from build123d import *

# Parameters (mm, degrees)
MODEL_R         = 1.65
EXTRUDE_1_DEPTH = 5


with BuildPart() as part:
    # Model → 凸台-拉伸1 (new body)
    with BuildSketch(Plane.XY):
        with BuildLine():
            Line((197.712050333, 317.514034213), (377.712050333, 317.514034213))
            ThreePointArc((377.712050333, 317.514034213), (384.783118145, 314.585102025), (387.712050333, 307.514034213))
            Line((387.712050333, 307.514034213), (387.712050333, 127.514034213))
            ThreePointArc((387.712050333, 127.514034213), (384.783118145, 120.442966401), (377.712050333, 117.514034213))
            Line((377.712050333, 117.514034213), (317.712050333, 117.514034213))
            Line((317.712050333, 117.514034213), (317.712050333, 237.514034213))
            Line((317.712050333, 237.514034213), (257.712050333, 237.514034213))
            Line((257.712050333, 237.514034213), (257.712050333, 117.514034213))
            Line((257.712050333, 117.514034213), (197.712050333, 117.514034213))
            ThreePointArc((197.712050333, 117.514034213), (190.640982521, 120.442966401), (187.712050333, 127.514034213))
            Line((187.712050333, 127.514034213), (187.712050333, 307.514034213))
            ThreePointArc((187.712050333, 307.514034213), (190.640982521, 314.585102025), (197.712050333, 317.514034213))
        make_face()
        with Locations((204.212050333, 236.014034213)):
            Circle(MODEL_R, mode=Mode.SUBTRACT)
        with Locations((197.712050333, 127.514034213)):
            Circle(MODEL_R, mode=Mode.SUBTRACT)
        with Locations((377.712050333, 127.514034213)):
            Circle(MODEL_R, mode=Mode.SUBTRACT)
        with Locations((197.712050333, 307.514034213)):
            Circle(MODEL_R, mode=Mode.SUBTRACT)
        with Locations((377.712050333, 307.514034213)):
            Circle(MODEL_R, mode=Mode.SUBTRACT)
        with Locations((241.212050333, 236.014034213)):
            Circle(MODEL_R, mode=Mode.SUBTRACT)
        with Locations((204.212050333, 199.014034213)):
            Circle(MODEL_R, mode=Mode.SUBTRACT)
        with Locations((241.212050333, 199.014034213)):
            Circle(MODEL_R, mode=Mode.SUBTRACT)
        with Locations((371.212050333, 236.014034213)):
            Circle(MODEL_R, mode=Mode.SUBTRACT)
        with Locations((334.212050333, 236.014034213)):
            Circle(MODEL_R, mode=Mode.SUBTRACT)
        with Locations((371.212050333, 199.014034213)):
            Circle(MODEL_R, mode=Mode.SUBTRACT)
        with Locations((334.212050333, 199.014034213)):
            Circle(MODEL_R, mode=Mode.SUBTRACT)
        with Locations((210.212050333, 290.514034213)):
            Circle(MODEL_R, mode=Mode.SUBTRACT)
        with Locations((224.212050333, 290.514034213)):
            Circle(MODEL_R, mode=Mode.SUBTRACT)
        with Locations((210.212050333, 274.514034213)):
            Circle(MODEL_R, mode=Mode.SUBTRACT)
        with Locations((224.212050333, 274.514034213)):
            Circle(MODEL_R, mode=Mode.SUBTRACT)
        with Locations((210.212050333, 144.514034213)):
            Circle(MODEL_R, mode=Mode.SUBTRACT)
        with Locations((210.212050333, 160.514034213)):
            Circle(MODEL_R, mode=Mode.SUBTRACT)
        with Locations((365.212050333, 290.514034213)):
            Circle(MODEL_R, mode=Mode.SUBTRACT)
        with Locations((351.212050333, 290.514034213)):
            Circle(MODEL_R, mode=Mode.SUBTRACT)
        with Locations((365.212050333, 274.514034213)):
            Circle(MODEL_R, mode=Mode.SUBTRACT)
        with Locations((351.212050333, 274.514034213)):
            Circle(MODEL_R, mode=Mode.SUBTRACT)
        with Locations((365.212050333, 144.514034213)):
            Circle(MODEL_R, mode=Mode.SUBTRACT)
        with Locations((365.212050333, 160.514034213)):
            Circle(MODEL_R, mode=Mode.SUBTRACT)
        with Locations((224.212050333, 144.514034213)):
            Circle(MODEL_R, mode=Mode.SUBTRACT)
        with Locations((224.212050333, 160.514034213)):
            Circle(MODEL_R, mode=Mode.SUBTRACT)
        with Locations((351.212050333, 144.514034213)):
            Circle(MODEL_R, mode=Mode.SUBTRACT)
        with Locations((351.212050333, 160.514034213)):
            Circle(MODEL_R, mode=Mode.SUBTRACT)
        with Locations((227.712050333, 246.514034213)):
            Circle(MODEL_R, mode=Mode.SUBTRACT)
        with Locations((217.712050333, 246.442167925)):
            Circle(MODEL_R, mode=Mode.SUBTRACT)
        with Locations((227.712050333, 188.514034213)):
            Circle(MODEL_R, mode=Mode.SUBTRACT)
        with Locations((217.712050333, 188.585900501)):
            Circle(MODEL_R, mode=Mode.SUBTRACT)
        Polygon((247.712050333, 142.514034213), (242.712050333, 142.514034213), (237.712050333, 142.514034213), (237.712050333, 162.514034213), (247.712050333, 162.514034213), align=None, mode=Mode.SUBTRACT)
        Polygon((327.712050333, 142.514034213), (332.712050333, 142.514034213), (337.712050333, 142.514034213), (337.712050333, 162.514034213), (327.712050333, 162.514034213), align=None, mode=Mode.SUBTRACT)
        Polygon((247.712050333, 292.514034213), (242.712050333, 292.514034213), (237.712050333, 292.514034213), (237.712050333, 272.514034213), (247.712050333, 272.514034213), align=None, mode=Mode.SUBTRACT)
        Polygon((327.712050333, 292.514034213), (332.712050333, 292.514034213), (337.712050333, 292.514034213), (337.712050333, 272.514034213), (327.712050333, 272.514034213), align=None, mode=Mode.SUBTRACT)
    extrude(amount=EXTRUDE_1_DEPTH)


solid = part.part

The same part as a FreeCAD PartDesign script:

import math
import FreeCAD as App
import Part
import Sketcher

V = App.Vector
Q = App.Units.Quantity


def add_polygon(sketch, points):
    """Adds a closed chain of lines whose ends are joined by coincident constraints."""
    first, n = sketch.GeometryCount, len(points)
    for a, b in zip(points, points[1:] + points[:1]):
        sketch.addGeometry(Part.LineSegment(App.Vector(*a, 0), App.Vector(*b, 0)), False)
    for i in range(n):
        sketch.addConstraint(Sketcher.Constraint("Coincident", first + i, 2, first + (i + 1) % n, 1))

doc = App.newDocument("Part")
body = doc.addObject("PartDesign::Body", "Body")

# Sketch on XY plane
sketch1 = body.newObject("Sketcher::SketchObject", "Sketch")
sketch1.AttachmentSupport = (doc.getObject("XY_Plane"), [""])
sketch1.MapMode = "FlatFace"
sketch1.addGeometry(Part.LineSegment(V(377.7, 317.5, 0), V(197.7, 317.5, 0)), False)  # 0
sketch1.addGeometry(Part.ArcOfCircle(Part.Circle(V(197.7, 307.5, 0), V(0, 0, 1), 10), math.radians(90), math.radians(180)), False)  # 1
sketch1.addGeometry(Part.LineSegment(V(187.7, 307.5, 0), V(187.7, 127.5, 0)), False)  # 2
sketch1.addGeometry(Part.ArcOfCircle(Part.Circle(V(197.7, 127.5, 0), V(0, 0, 1), 10), math.radians(180), math.radians(270)), False)  # 3
sketch1.addGeometry(Part.LineSegment(V(197.7, 117.5, 0), V(257.7, 117.5, 0)), False)  # 4
sketch1.addGeometry(Part.LineSegment(V(257.7, 117.5, 0), V(257.7, 237.5, 0)), False)  # 5
sketch1.addGeometry(Part.LineSegment(V(257.7, 237.5, 0), V(317.7, 237.5, 0)), False)  # 6
sketch1.addGeometry(Part.LineSegment(V(317.7, 237.5, 0), V(317.7, 117.5, 0)), False)  # 7
sketch1.addGeometry(Part.LineSegment(V(317.7, 117.5, 0), V(377.7, 117.5, 0)), False)  # 8
sketch1.addGeometry(Part.ArcOfCircle(Part.Circle(V(377.7, 127.5, 0), V(0, 0, 1), 10), math.radians(-90), math.radians(0)), False)  # 9
sketch1.addGeometry(Part.LineSegment(V(387.7, 127.5, 0), V(387.7, 307.5, 0)), False)  # 10
sketch1.addGeometry(Part.ArcOfCircle(Part.Circle(V(377.7, 307.5, 0), V(0, 0, 1), 10), math.radians(0), math.radians(90)), False)  # 11
sketch1.addGeometry(Part.Circle(V(377.7, 127.5, 0), V(0, 0, 1), 1.6), False)  # 12
sketch1.addGeometry(Part.Circle(V(365.2, 144.5, 0), V(0, 0, 1), 1.6), False)  # 13
sketch1.addGeometry(Part.Circle(V(351.2, 144.5, 0), V(0, 0, 1), 1.6), False)  # 14
sketch1.addGeometry(Part.Circle(V(365.2, 160.5, 0), V(0, 0, 1), 1.6), False)  # 15
sketch1.addGeometry(Part.Circle(V(351.2, 160.5, 0), V(0, 0, 1), 1.6), False)  # 16
add_polygon(sketch1, [(327.7, 142.5), (327.7, 162.5), (337.7, 162.5), (337.7, 142.5)])  # lines 17-20
sketch1.addGeometry(Part.Circle(V(371.2, 199, 0), V(0, 0, 1), 1.6), False)  # 21
sketch1.addGeometry(Part.Circle(V(334.2, 199, 0), V(0, 0, 1), 1.6), False)  # 22
add_polygon(sketch1, [(247.7, 142.5), (237.7, 142.5), (237.7, 162.5), (247.7, 162.5)])  # lines 23-26
sketch1.addGeometry(Part.Circle(V(224.2, 144.5, 0), V(0, 0, 1), 1.6), False)  # 27
sketch1.addGeometry(Part.Circle(V(197.7, 127.5, 0), V(0, 0, 1), 1.6), False)  # 28
sketch1.addGeometry(Part.Circle(V(210.2, 144.5, 0), V(0, 0, 1), 1.6), False)  # 29
sketch1.addGeometry(Part.Circle(V(224.2, 160.5, 0), V(0, 0, 1), 1.6), False)  # 30
sketch1.addGeometry(Part.Circle(V(210.2, 160.5, 0), V(0, 0, 1), 1.6), False)  # 31
sketch1.addGeometry(Part.Circle(V(227.7, 188.5, 0), V(0, 0, 1), 1.6), False)  # 32
sketch1.addGeometry(Part.Circle(V(217.7, 188.6, 0), V(0, 0, 1), 1.6), False)  # 33
sketch1.addGeometry(Part.Circle(V(241.2, 199, 0), V(0, 0, 1), 1.6), False)  # 34
sketch1.addGeometry(Part.Circle(V(204.2, 199, 0), V(0, 0, 1), 1.6), False)  # 35
sketch1.addGeometry(Part.Circle(V(371.2, 236, 0), V(0, 0, 1), 1.6), False)  # 36
sketch1.addGeometry(Part.Circle(V(334.2, 236, 0), V(0, 0, 1), 1.6), False)  # 37
sketch1.addGeometry(Part.Circle(V(365.2, 274.5, 0), V(0, 0, 1), 1.6), False)  # 38
sketch1.addGeometry(Part.Circle(V(351.2, 274.5, 0), V(0, 0, 1), 1.6), False)  # 39
sketch1.addGeometry(Part.Circle(V(365.2, 290.5, 0), V(0, 0, 1), 1.6), False)  # 40
sketch1.addGeometry(Part.Circle(V(377.7, 307.5, 0), V(0, 0, 1), 1.6), False)  # 41
sketch1.addGeometry(Part.Circle(V(351.2, 290.5, 0), V(0, 0, 1), 1.6), False)  # 42
add_polygon(sketch1, [(327.7, 292.5), (337.7, 292.5), (337.7, 272.5), (327.7, 272.5)])  # lines 43-46
sketch1.addGeometry(Part.Circle(V(241.2, 236, 0), V(0, 0, 1), 1.6), False)  # 47
sketch1.addGeometry(Part.Circle(V(204.2, 236, 0), V(0, 0, 1), 1.6), False)  # 48
sketch1.addGeometry(Part.Circle(V(227.7, 246.5, 0), V(0, 0, 1), 1.6), False)  # 49
sketch1.addGeometry(Part.Circle(V(217.7, 246.4, 0), V(0, 0, 1), 1.6), False)  # 50
add_polygon(sketch1, [(247.7, 292.5), (247.7, 272.5), (237.7, 272.5), (237.7, 292.5)])  # lines 51-54
sketch1.addGeometry(Part.Circle(V(224.2, 274.5, 0), V(0, 0, 1), 1.6), False)  # 55
sketch1.addGeometry(Part.Circle(V(210.2, 274.5, 0), V(0, 0, 1), 1.6), False)  # 56
sketch1.addGeometry(Part.Circle(V(224.2, 290.5, 0), V(0, 0, 1), 1.6), False)  # 57
sketch1.addGeometry(Part.Circle(V(210.2, 290.5, 0), V(0, 0, 1), 1.6), False)  # 58
sketch1.addGeometry(Part.Circle(V(197.7, 307.5, 0), V(0, 0, 1), 1.6), False)  # 59
sketch1.addConstraint(Sketcher.Constraint("Tangent", 0, 2, 1, 1))
sketch1.addConstraint(Sketcher.Constraint("Tangent", 1, 2, 2, 1))
sketch1.addConstraint(Sketcher.Constraint("Tangent", 2, 2, 3, 1))
sketch1.addConstraint(Sketcher.Constraint("Tangent", 3, 2, 4, 1))
sketch1.addConstraint(Sketcher.Constraint("Coincident", 4, 2, 5, 1))
sketch1.addConstraint(Sketcher.Constraint("Coincident", 5, 2, 6, 1))
sketch1.addConstraint(Sketcher.Constraint("Coincident", 6, 2, 7, 1))
sketch1.addConstraint(Sketcher.Constraint("Coincident", 7, 2, 8, 1))
sketch1.addConstraint(Sketcher.Constraint("Tangent", 8, 2, 9, 1))
sketch1.addConstraint(Sketcher.Constraint("Tangent", 9, 2, 10, 1))
sketch1.addConstraint(Sketcher.Constraint("Tangent", 10, 2, 11, 1))
sketch1.addConstraint(Sketcher.Constraint("Tangent", 11, 2, 0, 1))
sketch1.addConstraint(Sketcher.Constraint("Horizontal", 0))
sketch1.addConstraint(Sketcher.Constraint("Vertical", 2))
sketch1.addConstraint(Sketcher.Constraint("Horizontal", 4))
sketch1.addConstraint(Sketcher.Constraint("Vertical", 5))
sketch1.addConstraint(Sketcher.Constraint("Horizontal", 6))
sketch1.addConstraint(Sketcher.Constraint("Vertical", 7))
sketch1.addConstraint(Sketcher.Constraint("Horizontal", 8))
sketch1.addConstraint(Sketcher.Constraint("Vertical", 10))
sketch1.addConstraint(Sketcher.Constraint("Vertical", 17))
sketch1.addConstraint(Sketcher.Constraint("Horizontal", 18))
sketch1.addConstraint(Sketcher.Constraint("Vertical", 19))
sketch1.addConstraint(Sketcher.Constraint("Horizontal", 20))
sketch1.addConstraint(Sketcher.Constraint("Horizontal", 23))
sketch1.addConstraint(Sketcher.Constraint("Vertical", 24))
sketch1.addConstraint(Sketcher.Constraint("Horizontal", 25))
sketch1.addConstraint(Sketcher.Constraint("Vertical", 26))
sketch1.addConstraint(Sketcher.Constraint("Horizontal", 43))
sketch1.addConstraint(Sketcher.Constraint("Vertical", 44))
sketch1.addConstraint(Sketcher.Constraint("Horizontal", 45))
sketch1.addConstraint(Sketcher.Constraint("Vertical", 46))
sketch1.addConstraint(Sketcher.Constraint("Vertical", 51))
sketch1.addConstraint(Sketcher.Constraint("Horizontal", 52))
sketch1.addConstraint(Sketcher.Constraint("Vertical", 53))
sketch1.addConstraint(Sketcher.Constraint("Horizontal", 54))
sketch1.addConstraint(Sketcher.Constraint("Coincident", 12, 3, 9, 3))
sketch1.addConstraint(Sketcher.Constraint("Coincident", 28, 3, 3, 3))
sketch1.addConstraint(Sketcher.Constraint("Coincident", 41, 3, 11, 3))
sketch1.addConstraint(Sketcher.Constraint("Coincident", 59, 3, 1, 3))
sketch1.addConstraint(Sketcher.Constraint("Equal", 1, 3))
sketch1.addConstraint(Sketcher.Constraint("Equal", 3, 9))
sketch1.addConstraint(Sketcher.Constraint("Equal", 9, 11))
sketch1.addConstraint(Sketcher.Constraint("Equal", 12, 13))
sketch1.addConstraint(Sketcher.Constraint("Equal", 13, 14))
sketch1.addConstraint(Sketcher.Constraint("Equal", 14, 15))
sketch1.addConstraint(Sketcher.Constraint("Equal", 15, 16))
sketch1.addConstraint(Sketcher.Constraint("Equal", 16, 21))
sketch1.addConstraint(Sketcher.Constraint("Equal", 21, 22))
sketch1.addConstraint(Sketcher.Constraint("Equal", 22, 27))
sketch1.addConstraint(Sketcher.Constraint("Equal", 27, 28))
sketch1.addConstraint(Sketcher.Constraint("Equal", 28, 29))
sketch1.addConstraint(Sketcher.Constraint("Equal", 29, 30))
sketch1.addConstraint(Sketcher.Constraint("Equal", 30, 31))
sketch1.addConstraint(Sketcher.Constraint("Equal", 31, 32))
sketch1.addConstraint(Sketcher.Constraint("Equal", 32, 33))
sketch1.addConstraint(Sketcher.Constraint("Equal", 33, 34))
sketch1.addConstraint(Sketcher.Constraint("Equal", 34, 35))
sketch1.addConstraint(Sketcher.Constraint("Equal", 35, 36))
sketch1.addConstraint(Sketcher.Constraint("Equal", 36, 37))
sketch1.addConstraint(Sketcher.Constraint("Equal", 37, 38))
sketch1.addConstraint(Sketcher.Constraint("Equal", 38, 39))
sketch1.addConstraint(Sketcher.Constraint("Equal", 39, 40))
sketch1.addConstraint(Sketcher.Constraint("Equal", 40, 41))
sketch1.addConstraint(Sketcher.Constraint("Equal", 41, 42))
sketch1.addConstraint(Sketcher.Constraint("Equal", 42, 47))
sketch1.addConstraint(Sketcher.Constraint("Equal", 47, 48))
sketch1.addConstraint(Sketcher.Constraint("Equal", 48, 49))
sketch1.addConstraint(Sketcher.Constraint("Equal", 49, 50))
sketch1.addConstraint(Sketcher.Constraint("Equal", 50, 55))
sketch1.addConstraint(Sketcher.Constraint("Equal", 55, 56))
sketch1.addConstraint(Sketcher.Constraint("Equal", 56, 57))
sketch1.addConstraint(Sketcher.Constraint("Equal", 57, 58))
sketch1.addConstraint(Sketcher.Constraint("Equal", 58, 59))
sketch1.addConstraint(Sketcher.Constraint("Horizontal", 3, 3, 9, 3))
sketch1.addConstraint(Sketcher.Constraint("Horizontal", 13, 3, 14, 3))
sketch1.addConstraint(Sketcher.Constraint("Horizontal", 15, 3, 16, 3))
sketch1.addConstraint(Sketcher.Constraint("Horizontal", 21, 3, 22, 3))
sketch1.addConstraint(Sketcher.Constraint("Horizontal", 14, 3, 27, 3))
sketch1.addConstraint(Sketcher.Constraint("Horizontal", 27, 3, 29, 3))
sketch1.addConstraint(Sketcher.Constraint("Horizontal", 16, 3, 30, 3))
sketch1.addConstraint(Sketcher.Constraint("Horizontal", 30, 3, 31, 3))
sketch1.addConstraint(Sketcher.Constraint("Horizontal", 22, 3, 34, 3))
sketch1.addConstraint(Sketcher.Constraint("Horizontal", 34, 3, 35, 3))
sketch1.addConstraint(Sketcher.Constraint("Horizontal", 36, 3, 37, 3))
sketch1.addConstraint(Sketcher.Constraint("Horizontal", 38, 3, 39, 3))
sketch1.addConstraint(Sketcher.Constraint("Horizontal", 40, 3, 42, 3))
sketch1.addConstraint(Sketcher.Constraint("Horizontal", 37, 3, 47, 3))
sketch1.addConstraint(Sketcher.Constraint("Horizontal", 47, 3, 48, 3))
sketch1.addConstraint(Sketcher.Constraint("Horizontal", 39, 3, 55, 3))
sketch1.addConstraint(Sketcher.Constraint("Horizontal", 55, 3, 56, 3))
sketch1.addConstraint(Sketcher.Constraint("Horizontal", 42, 3, 57, 3))
sketch1.addConstraint(Sketcher.Constraint("Horizontal", 57, 3, 58, 3))
sketch1.addConstraint(Sketcher.Constraint("Horizontal", 20, 2, 23, 2))
sketch1.addConstraint(Sketcher.Constraint("Horizontal", 18, 2, 24, 2))
sketch1.addConstraint(Sketcher.Constraint("Horizontal", 45, 2, 51, 2))
sketch1.addConstraint(Sketcher.Constraint("Horizontal", 46, 2, 53, 2))
sketch1.addConstraint(Sketcher.Constraint("Vertical", 13, 3, 15, 3))
sketch1.addConstraint(Sketcher.Constraint("Vertical", 14, 3, 16, 3))
sketch1.addConstraint(Sketcher.Constraint("Vertical", 27, 3, 30, 3))
sketch1.addConstraint(Sketcher.Constraint("Vertical", 29, 3, 31, 3))
sketch1.addConstraint(Sketcher.Constraint("Vertical", 21, 3, 36, 3))
sketch1.addConstraint(Sketcher.Constraint("Vertical", 22, 3, 37, 3))
sketch1.addConstraint(Sketcher.Constraint("Vertical", 15, 3, 38, 3))
sketch1.addConstraint(Sketcher.Constraint("Vertical", 16, 3, 39, 3))
sketch1.addConstraint(Sketcher.Constraint("Vertical", 38, 3, 40, 3))
sketch1.addConstraint(Sketcher.Constraint("Vertical", 39, 3, 42, 3))
sketch1.addConstraint(Sketcher.Constraint("Vertical", 34, 3, 47, 3))
sketch1.addConstraint(Sketcher.Constraint("Vertical", 35, 3, 48, 3))
sketch1.addConstraint(Sketcher.Constraint("Vertical", 32, 3, 49, 3))
sketch1.addConstraint(Sketcher.Constraint("Vertical", 33, 3, 50, 3))
sketch1.addConstraint(Sketcher.Constraint("Vertical", 30, 3, 55, 3))
sketch1.addConstraint(Sketcher.Constraint("Vertical", 31, 3, 56, 3))
sketch1.addConstraint(Sketcher.Constraint("Vertical", 55, 3, 57, 3))
sketch1.addConstraint(Sketcher.Constraint("Vertical", 56, 3, 58, 3))
sketch1.addConstraint(Sketcher.Constraint("Vertical", 19, 2, 43, 2))
sketch1.addConstraint(Sketcher.Constraint("Vertical", 20, 2, 45, 2))
sketch1.addConstraint(Sketcher.Constraint("Vertical", 26, 2, 51, 2))
sketch1.addConstraint(Sketcher.Constraint("Vertical", 24, 2, 52, 2))
sketch1.addConstraint(Sketcher.Constraint("Equal", 4, 6))
sketch1.addConstraint(Sketcher.Constraint("Equal", 6, 8))
sketch1.addConstraint(Sketcher.Constraint("Equal", 20, 23))
sketch1.addConstraint(Sketcher.Constraint("Equal", 0, 2))
sketch1.addConstraint(Sketcher.Constraint("Equal", 26, 44))
sketch1.addConstraint(Sketcher.Constraint("Radius", 1, Q("10 mm")))
sketch1.addConstraint(Sketcher.Constraint("Diameter", 12, Q("3.3 mm")))
sketch1.addConstraint(Sketcher.Constraint("DistanceX", 0, 2, 0, 1, Q("180 mm")))
sketch1.addConstraint(Sketcher.Constraint("DistanceX", 18, 1, 18, 2, Q("10 mm")))
sketch1.addConstraint(Sketcher.Constraint("DistanceY", 5, 1, 5, 2, Q("120 mm")))
sketch1.addConstraint(Sketcher.Constraint("DistanceY", 17, 1, 17, 2, Q("20 mm")))
sketch1.addConstraint(Sketcher.Constraint("DistanceY", -1, 1, 33, 3, Q("188.585901 mm")))
sketch1.addConstraint(Sketcher.Constraint("DistanceX", -1, 1, 1, 3, Q("197.71205 mm")))
sketch1.addConstraint(Sketcher.Constraint("DistanceX", -1, 1, 13, 3, Q("365.21205 mm")))
sketch1.addConstraint(Sketcher.Constraint("DistanceX", -1, 1, 14, 3, Q("351.21205 mm")))
sketch1.addConstraint(Sketcher.Constraint("DistanceX", -1, 1, 21, 3, Q("371.21205 mm")))
sketch1.addConstraint(Sketcher.Constraint("DistanceX", -1, 1, 22, 3, Q("334.21205 mm")))
sketch1.addConstraint(Sketcher.Constraint("DistanceX", -1, 1, 27, 3, Q("224.21205 mm")))
sketch1.addConstraint(Sketcher.Constraint("DistanceX", -1, 1, 29, 3, Q("210.21205 mm")))
sketch1.addConstraint(Sketcher.Constraint("DistanceX", -1, 1, 32, 3, Q("227.71205 mm")))
sketch1.addConstraint(Sketcher.Constraint("DistanceX", -1, 1, 33, 3, Q("217.71205 mm")))
sketch1.addConstraint(Sketcher.Constraint("DistanceX", -1, 1, 34, 3, Q("241.21205 mm")))
sketch1.addConstraint(Sketcher.Constraint("DistanceX", -1, 1, 35, 3, Q("204.21205 mm")))
sketch1.addConstraint(Sketcher.Constraint("DistanceX", -1, 1, 17, 2, Q("327.71205 mm")))
sketch1.addConstraint(Sketcher.Constraint("DistanceX", -1, 1, 23, 2, Q("237.71205 mm")))
sketch1.addConstraint(Sketcher.Constraint("DistanceY", -1, 1, 1, 3, Q("307.514034 mm")))
sketch1.addConstraint(Sketcher.Constraint("DistanceY", -1, 1, 13, 3, Q("144.514034 mm")))
sketch1.addConstraint(Sketcher.Constraint("DistanceY", -1, 1, 15, 3, Q("160.514034 mm")))
sketch1.addConstraint(Sketcher.Constraint("DistanceY", -1, 1, 21, 3, Q("199.014034 mm")))
sketch1.addConstraint(Sketcher.Constraint("DistanceY", -1, 1, 32, 3, Q("188.514034 mm")))
sketch1.addConstraint(Sketcher.Constraint("DistanceY", -1, 1, 36, 3, Q("236.014034 mm")))
sketch1.addConstraint(Sketcher.Constraint("DistanceY", -1, 1, 38, 3, Q("274.514034 mm")))
sketch1.addConstraint(Sketcher.Constraint("DistanceY", -1, 1, 40, 3, Q("290.514034 mm")))
sketch1.addConstraint(Sketcher.Constraint("DistanceY", -1, 1, 49, 3, Q("246.514034 mm")))
sketch1.addConstraint(Sketcher.Constraint("DistanceY", -1, 1, 50, 3, Q("246.442168 mm")))
sketch1.addConstraint(Sketcher.Constraint("DistanceY", -1, 1, 17, 2, Q("162.514034 mm")))
sketch1.addConstraint(Sketcher.Constraint("DistanceY", -1, 1, 43, 2, Q("292.514034 mm")))
pad1 = body.newObject("PartDesign::Pad", "Pad")
pad1.Profile = sketch1
pad1.Length = 5

doc.recompute()
